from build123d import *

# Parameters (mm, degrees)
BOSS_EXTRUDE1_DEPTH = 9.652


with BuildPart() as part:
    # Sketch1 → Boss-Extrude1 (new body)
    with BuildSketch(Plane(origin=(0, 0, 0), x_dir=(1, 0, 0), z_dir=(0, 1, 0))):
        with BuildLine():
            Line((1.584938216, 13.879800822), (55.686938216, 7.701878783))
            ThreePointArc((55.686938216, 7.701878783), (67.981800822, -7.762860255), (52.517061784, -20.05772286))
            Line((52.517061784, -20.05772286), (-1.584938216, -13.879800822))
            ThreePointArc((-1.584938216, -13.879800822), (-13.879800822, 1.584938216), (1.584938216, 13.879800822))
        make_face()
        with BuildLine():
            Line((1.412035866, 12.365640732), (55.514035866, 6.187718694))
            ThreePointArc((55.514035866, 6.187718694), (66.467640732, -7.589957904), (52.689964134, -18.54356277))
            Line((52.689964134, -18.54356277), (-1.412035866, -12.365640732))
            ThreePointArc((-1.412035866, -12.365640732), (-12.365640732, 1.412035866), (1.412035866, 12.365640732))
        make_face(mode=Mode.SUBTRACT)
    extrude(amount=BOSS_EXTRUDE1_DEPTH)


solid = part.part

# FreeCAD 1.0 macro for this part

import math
import FreeCAD as App
import Part
import Sketcher
Q = App.Units.Quantity

doc = App.newDocument("Part")
body = doc.addObject("PartDesign::Body", "Body")

# Sketch on XZ plane
sketch1 = body.newObject("Sketcher::SketchObject", "Sketch")
sketch1.AttachmentSupport = (doc.getObject("XZ_Plane"), [""])
sketch1.MapMode = "FlatFace"
sketch1.addGeometry([
    Part.LineSegment(App.Vector(56, -8, 0), App.Vector(2, -14, 0)),  # 0
    Part.ArcOfCircle(Part.Circle(App.Vector(0, 0, 0), App.Vector(0, 0, 1), 14), math.radians(97), math.radians(277)),  # 1
    Part.LineSegment(App.Vector(-2, 14, 0), App.Vector(53, 20, 0)),  # 2
    Part.ArcOfCircle(Part.Circle(App.Vector(54, 6, 0), App.Vector(0, 0, 1), 14), math.radians(-83), math.radians(97)),  # 3
    Part.LineSegment(App.Vector(1, -12, 0), App.Vector(56, -6, 0)),  # 4
    Part.ArcOfCircle(Part.Circle(App.Vector(54, 6, 0), App.Vector(0, 0, 1), 12), math.radians(-83), math.radians(97)),  # 5
    Part.LineSegment(App.Vector(53, 19, 0), App.Vector(-1, 12, 0)),  # 6
    Part.ArcOfCircle(Part.Circle(App.Vector(0, 0, 0), App.Vector(0, 0, 1), 12), math.radians(97), math.radians(277)),  # 7
], False)
sketch1.addConstraint([
    Sketcher.Constraint("Tangent", 0, 2, 1, 2),
    Sketcher.Constraint("Tangent", 1, 1, 2, 1),
    Sketcher.Constraint("Tangent", 2, 2, 3, 2),
    Sketcher.Constraint("Tangent", 3, 1, 0, 1),
    Sketcher.Constraint("Tangent", 4, 2, 5, 1),
    Sketcher.Constraint("Tangent", 5, 2, 6, 1),
    Sketcher.Constraint("Tangent", 6, 2, 7, 1),
    Sketcher.Constraint("Tangent", 7, 2, 4, 1),
    Sketcher.Constraint("Coincident", 1, 3, -1, 1),
    Sketcher.Constraint("Coincident", 7, 3, -1, 1),
    Sketcher.Constraint("Coincident", 5, 3, 3, 3),
    Sketcher.Constraint("Equal", 1, 3),
    Sketcher.Constraint("Equal", 5, 7),
    Sketcher.Constraint("Radius", 1, Q("0.55 in")),
    Sketcher.Constraint("Radius", 5, Q("0.49 in")),
    Sketcher.Constraint("DistanceX", -1, 1, 3, 3, Q("2.13 in")),
    Sketcher.Constraint("DistanceY", 0, 2, -1, 1, 13.879801),
])
pad1 = body.newObject("PartDesign::Pad", "Pad")
pad1.Profile = sketch1
pad1.Length = Q("0.38 in")
pad1.Reversed = True

doc.recompute()
